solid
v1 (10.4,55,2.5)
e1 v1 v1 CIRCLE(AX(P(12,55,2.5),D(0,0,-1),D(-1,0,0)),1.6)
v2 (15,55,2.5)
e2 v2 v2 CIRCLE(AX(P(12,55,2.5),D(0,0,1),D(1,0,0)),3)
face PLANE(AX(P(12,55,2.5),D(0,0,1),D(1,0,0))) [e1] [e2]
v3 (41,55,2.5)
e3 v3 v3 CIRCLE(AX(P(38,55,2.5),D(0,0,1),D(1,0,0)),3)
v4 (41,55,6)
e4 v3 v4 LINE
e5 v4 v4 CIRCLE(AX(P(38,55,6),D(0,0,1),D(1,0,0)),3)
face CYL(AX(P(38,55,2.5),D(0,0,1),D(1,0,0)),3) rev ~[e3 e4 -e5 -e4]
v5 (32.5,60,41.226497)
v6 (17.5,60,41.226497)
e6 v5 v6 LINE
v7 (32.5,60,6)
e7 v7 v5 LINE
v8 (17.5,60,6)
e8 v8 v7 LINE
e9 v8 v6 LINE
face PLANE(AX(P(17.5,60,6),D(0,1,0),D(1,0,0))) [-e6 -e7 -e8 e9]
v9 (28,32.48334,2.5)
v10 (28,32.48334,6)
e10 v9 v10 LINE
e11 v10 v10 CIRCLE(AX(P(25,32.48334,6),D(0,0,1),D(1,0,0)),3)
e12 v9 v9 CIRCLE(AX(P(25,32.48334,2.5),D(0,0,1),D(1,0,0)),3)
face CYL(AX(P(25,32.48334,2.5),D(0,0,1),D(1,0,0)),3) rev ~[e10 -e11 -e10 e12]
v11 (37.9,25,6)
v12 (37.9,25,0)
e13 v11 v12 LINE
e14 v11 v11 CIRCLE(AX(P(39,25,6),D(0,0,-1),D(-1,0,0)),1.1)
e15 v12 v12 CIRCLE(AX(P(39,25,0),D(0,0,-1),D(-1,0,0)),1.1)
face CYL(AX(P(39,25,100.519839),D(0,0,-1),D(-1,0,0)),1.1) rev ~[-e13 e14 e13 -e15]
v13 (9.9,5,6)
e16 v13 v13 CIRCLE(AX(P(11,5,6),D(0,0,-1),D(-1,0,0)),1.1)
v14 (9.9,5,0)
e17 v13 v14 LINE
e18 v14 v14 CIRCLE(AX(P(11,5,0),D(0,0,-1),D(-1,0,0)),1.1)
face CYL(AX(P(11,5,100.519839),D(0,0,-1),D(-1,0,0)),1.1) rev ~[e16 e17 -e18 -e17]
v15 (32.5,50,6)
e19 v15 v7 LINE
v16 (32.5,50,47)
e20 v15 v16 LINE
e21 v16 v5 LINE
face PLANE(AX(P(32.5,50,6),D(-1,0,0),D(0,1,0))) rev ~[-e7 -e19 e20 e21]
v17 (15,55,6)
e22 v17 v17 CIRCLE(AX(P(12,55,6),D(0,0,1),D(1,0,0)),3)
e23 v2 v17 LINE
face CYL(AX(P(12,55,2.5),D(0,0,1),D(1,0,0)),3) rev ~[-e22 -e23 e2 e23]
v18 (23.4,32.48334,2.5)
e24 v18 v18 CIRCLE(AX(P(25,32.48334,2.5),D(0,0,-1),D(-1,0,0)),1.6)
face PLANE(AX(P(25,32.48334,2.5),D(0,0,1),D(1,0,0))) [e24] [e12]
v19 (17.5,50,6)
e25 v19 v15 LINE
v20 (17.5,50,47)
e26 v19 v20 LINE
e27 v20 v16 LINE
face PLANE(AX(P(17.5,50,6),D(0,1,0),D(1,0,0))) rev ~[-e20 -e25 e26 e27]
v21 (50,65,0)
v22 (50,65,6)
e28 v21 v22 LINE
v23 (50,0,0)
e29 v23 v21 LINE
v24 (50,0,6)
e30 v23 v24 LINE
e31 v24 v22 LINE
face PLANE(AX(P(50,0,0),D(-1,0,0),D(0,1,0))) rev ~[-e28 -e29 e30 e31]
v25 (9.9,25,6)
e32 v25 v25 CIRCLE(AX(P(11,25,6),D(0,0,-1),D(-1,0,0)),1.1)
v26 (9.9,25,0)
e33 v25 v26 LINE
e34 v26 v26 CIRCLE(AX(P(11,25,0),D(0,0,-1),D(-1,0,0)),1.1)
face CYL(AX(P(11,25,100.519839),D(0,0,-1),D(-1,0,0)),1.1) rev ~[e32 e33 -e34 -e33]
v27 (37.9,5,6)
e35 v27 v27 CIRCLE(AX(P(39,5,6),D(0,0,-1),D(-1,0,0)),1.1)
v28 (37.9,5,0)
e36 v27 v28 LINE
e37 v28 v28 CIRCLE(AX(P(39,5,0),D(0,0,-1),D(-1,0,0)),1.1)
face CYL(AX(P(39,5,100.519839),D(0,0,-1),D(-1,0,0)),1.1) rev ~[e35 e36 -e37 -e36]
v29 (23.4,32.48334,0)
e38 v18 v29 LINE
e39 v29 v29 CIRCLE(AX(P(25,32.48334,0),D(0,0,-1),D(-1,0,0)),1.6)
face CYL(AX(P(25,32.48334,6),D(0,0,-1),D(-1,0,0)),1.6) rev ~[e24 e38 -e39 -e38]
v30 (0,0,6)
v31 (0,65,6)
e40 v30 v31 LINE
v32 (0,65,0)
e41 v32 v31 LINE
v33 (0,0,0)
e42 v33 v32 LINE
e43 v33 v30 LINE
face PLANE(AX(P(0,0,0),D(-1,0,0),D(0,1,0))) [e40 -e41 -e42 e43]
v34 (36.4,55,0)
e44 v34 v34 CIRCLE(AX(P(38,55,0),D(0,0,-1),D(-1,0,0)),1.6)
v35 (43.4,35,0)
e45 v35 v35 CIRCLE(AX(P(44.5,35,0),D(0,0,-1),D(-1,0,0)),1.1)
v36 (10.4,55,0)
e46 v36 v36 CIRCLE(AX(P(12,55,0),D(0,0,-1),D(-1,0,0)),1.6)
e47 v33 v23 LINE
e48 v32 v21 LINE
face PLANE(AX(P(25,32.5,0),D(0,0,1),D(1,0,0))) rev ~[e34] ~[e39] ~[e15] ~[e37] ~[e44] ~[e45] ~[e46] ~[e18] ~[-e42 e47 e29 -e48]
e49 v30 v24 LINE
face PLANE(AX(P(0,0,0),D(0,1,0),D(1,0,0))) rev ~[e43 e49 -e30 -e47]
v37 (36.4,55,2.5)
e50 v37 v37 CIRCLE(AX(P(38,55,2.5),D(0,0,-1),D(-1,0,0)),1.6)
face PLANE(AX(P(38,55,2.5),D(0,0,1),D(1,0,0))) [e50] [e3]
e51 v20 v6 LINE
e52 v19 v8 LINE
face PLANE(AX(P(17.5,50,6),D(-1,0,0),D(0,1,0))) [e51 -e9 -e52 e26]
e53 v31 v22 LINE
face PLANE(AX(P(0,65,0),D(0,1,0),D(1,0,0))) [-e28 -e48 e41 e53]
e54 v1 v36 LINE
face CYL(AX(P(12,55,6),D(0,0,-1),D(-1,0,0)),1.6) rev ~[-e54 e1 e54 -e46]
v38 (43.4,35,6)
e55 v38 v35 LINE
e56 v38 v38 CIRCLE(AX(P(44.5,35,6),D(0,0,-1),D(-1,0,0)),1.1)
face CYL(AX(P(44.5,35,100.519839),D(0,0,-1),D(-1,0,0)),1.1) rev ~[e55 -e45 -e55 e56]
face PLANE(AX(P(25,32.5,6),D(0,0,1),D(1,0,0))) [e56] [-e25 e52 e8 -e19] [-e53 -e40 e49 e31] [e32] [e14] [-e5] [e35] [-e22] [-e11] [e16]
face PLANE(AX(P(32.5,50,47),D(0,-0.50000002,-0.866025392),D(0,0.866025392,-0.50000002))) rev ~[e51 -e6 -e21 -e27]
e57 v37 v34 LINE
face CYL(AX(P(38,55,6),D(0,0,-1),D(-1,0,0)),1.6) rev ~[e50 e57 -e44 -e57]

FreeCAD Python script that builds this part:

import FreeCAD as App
import Part
import Sketcher

V = App.Vector
Q = App.Units.Quantity

doc = App.newDocument("Part")
params = doc.addObject("Spreadsheet::Sheet", "Params")
for row, (alias, value) in enumerate([
    ("sketch1_width", "50 mm"),
    ("sketch1_height", "65 mm"),
    ("pad1_length", "6 mm"),
    ("sketch2_width", "15 mm"),
    ("sketch2_height", "10 mm"),
    ("pad2_length", "41 mm"),
    ("sketch3_diameter", "3.2 mm"),
    ("hole_diameter", "3.2 mm"),
    ("hole_cbore_diameter", "6 mm"),
    ("hole_cbore_depth", "3.5 mm"),
    ("sketch4_diameter", "2.2 mm"),
    ("hole2_diameter", "2.2 mm"),
    ("sketch5_width", "10 mm"),
], start=1):
    params.set(f"A{row}", alias)
    params.set(f"B{row}", "=" + value)
    params.setAlias(f"B{row}", alias)

body = doc.addObject("PartDesign::Body", "Body")

# Sketch on XY plane
sketch1 = doc.addObject("Sketcher::SketchObject", "Sketch")
body.addObject(sketch1)
sketch1.AttachmentSupport = (doc.XY_Plane, [""])
sketch1.MapMode = "FlatFace"
sketch1.addGeometry([
    Part.LineSegment(V(0, 65, 0), V(0, 0, 0)),
    Part.LineSegment(V(0, 0, 0), V(50, 0, 0)),
    Part.LineSegment(V(50, 0, 0), V(50, 65, 0)),
    Part.LineSegment(V(50, 65, 0), V(0, 65, 0)),
], False)
sketch1.addConstraint([
    Sketcher.Constraint("Coincident", 0, 2, 1, 1),
    Sketcher.Constraint("Coincident", 1, 2, 2, 1),
    Sketcher.Constraint("Coincident", 2, 2, 3, 1),
    Sketcher.Constraint("Coincident", 3, 2, 0, 1),
    Sketcher.Constraint("Vertical", 0),
    Sketcher.Constraint("Horizontal", 1),
    Sketcher.Constraint("Vertical", 2),
    Sketcher.Constraint("Horizontal", 3),
    Sketcher.Constraint("Coincident", 0, 2, -1, 1),
    Sketcher.Constraint("DistanceX", 1, 1, 1, 2, Q("50 mm")),
    Sketcher.Constraint("DistanceY", 0, 2, 0, 1, Q("65 mm")),
])
sketch1.setExpression("Constraints[9]", "Params.sketch1_width")
sketch1.setExpression("Constraints[10]", "Params.sketch1_height")
pad1 = doc.addObject("PartDesign::Pad", "Pad")
body.addObject(pad1)
pad1.Profile = sketch1
pad1.setExpression("Length", "Params.pad1_length")

# Sketch on XY plane
sketch2 = doc.addObject("Sketcher::SketchObject", "Sketch001")
body.addObject(sketch2)
sketch2.AttachmentSupport = (doc.XY_Plane, [""])
sketch2.MapMode = "FlatFace"
sketch2.AttachmentOffset = App.Placement(V(0, 0, 6), App.Rotation())
sketch2.addGeometry([
    Part.LineSegment(V(17.5, 60, 0), V(17.5, 50, 0)),
    Part.LineSegment(V(17.5, 50, 0), V(32.5, 50, 0)),
    Part.LineSegment(V(32.5, 50, 0), V(32.5, 60, 0)),
    Part.LineSegment(V(32.5, 60, 0), V(17.5, 60, 0)),
], False)
sketch2.addConstraint([
    Sketcher.Constraint("Coincident", 0, 2, 1, 1),
    Sketcher.Constraint("Coincident", 1, 2, 2, 1),
    Sketcher.Constraint("Coincident", 2, 2, 3, 1),
    Sketcher.Constraint("Coincident", 3, 2, 0, 1),
    Sketcher.Constraint("Vertical", 0),
    Sketcher.Constraint("Horizontal", 1),
    Sketcher.Constraint("Vertical", 2),
    Sketcher.Constraint("Horizontal", 3),
    Sketcher.Constraint("DistanceX", 1, 1, 1, 2, Q("15 mm")),
    Sketcher.Constraint("DistanceY", 0, 2, 0, 1, Q("10 mm")),
    Sketcher.Constraint("DistanceY", -1, 1, 0, 2, Q("50 mm")),
    Sketcher.Constraint("DistanceX", -1, 1, 0, 2, Q("17.5 mm")),
])
sketch2.setExpression("Constraints[8]", "Params.sketch2_width")
sketch2.setExpression("Constraints[9]", "Params.sketch2_height")
pad2 = doc.addObject("PartDesign::Pad", "Pad001")
body.addObject(pad2)
pad2.Profile = sketch2
pad2.setExpression("Length", "Params.pad2_length")

# Sketch on XY plane
sketch3 = doc.addObject("Sketcher::SketchObject", "Sketch002")
body.addObject(sketch3)
sketch3.AttachmentSupport = (doc.XY_Plane, [""])
sketch3.MapMode = "FlatFace"
sketch3.AttachmentOffset = App.Placement(V(0, 0, 6), App.Rotation())
sketch3.addGeometry([
    Part.Circle(V(12, 55, 0), V(0, 0, 1), 1.6),
    Part.Circle(V(38, 55, 0), V(0, 0, 1), 1.6),
    Part.Circle(V(25, 32.48334, 0), V(0, 0, 1), 1.6),
], False)
sketch3.addConstraint([
    Sketcher.Constraint("Equal", 0, 1),
    Sketcher.Constraint("Equal", 1, 2),
    Sketcher.Constraint("Horizontal", 0, 3, 1, 3),
    Sketcher.Constraint("Diameter", 0, Q("3.2 mm")),
    Sketcher.Constraint("DistanceX", -1, 1, 0, 3, Q("12 mm")),
    Sketcher.Constraint("DistanceY", -1, 1, 0, 3, Q("55 mm")),
    Sketcher.Constraint("DistanceX", -1, 1, 1, 3, Q("38 mm")),
    Sketcher.Constraint("DistanceX", -1, 1, 2, 3, Q("25 mm")),
    Sketcher.Constraint("DistanceY", -1, 1, 2, 3, Q("32.48334 mm")),
])
sketch3.setExpression("Constraints[3]", "Params.sketch3_diameter")
doc.recompute()
hole = doc.addObject("PartDesign::Hole", "Hole")
body.addObject(hole)
hole.Profile = sketch3
hole.ThreadType = "None"
hole.setExpression("Diameter", "Params.hole_diameter")
hole.DepthType = "ThroughAll"
hole.HoleCutType = "Counterbore"
hole.setExpression("HoleCutDiameter", "Params.hole_cbore_diameter")
hole.setExpression("HoleCutDepth", "Params.hole_cbore_depth")

# Sketch on XY plane
sketch4 = doc.addObject("Sketcher::SketchObject", "Sketch003")
body.addObject(sketch4)
sketch4.AttachmentSupport = (doc.XY_Plane, [""])
sketch4.MapMode = "FlatFace"
sketch4.AttachmentOffset = App.Placement(V(0, 0, 6), App.Rotation())
sketch4.addGeometry([
    Part.Circle(V(11, 25, 0), V(0, 0, 1), 1.1),  # 0
    Part.Circle(V(39, 25, 0), V(0, 0, 1), 1.1),  # 1
    Part.Circle(V(39, 5, 0), V(0, 0, 1), 1.1),  # 2
    Part.Circle(V(11, 5, 0), V(0, 0, 1), 1.1),  # 3
    Part.Circle(V(44.5, 35, 0), V(0, 0, 1), 1.1),  # 4
], False)
sketch4.addConstraint([
    Sketcher.Constraint("Equal", 0, 1),
    Sketcher.Constraint("Equal", 1, 2),
    Sketcher.Constraint("Equal", 2, 3),
    Sketcher.Constraint("Equal", 3, 4),
    Sketcher.Constraint("Horizontal", 0, 3, 1, 3),
    Sketcher.Constraint("Horizontal", 2, 3, 3, 3),
    Sketcher.Constraint("Vertical", 1, 3, 2, 3),
    Sketcher.Constraint("Vertical", 0, 3, 3, 3),
    Sketcher.Constraint("Diameter", 0, Q("2.2 mm")),
    Sketcher.Constraint("DistanceX", -1, 1, 0, 3, Q("11 mm")),
    Sketcher.Constraint("DistanceY", -1, 1, 0, 3, Q("25 mm")),
    Sketcher.Constraint("DistanceX", -1, 1, 1, 3, Q("39 mm")),
    Sketcher.Constraint("DistanceY", -1, 1, 2, 3, Q("5 mm")),
    Sketcher.Constraint("DistanceY", -1, 1, 4, 3, Q("35 mm")),
    Sketcher.Constraint("DistanceX", -1, 1, 4, 3, Q("44.5 mm")),
])
sketch4.setExpression("Constraints[8]", "Params.sketch4_diameter")
doc.recompute()
hole2 = doc.addObject("PartDesign::Hole", "Hole001")
body.addObject(hole2)
hole2.Profile = sketch4
hole2.ThreadType = "None"
hole2.setExpression("Diameter", "Params.hole2_diameter")
hole2.DepthType = "ThroughAll"

# Sketch on YZ plane
sketch5 = doc.addObject("Sketcher::SketchObject", "Sketch004")
body.addObject(sketch5)
sketch5.AttachmentSupport = (doc.YZ_Plane, [""])
sketch5.MapMode = "FlatFace"
sketch5.AttachmentOffset = App.Placement(V(0, 0, 32.5), App.Rotation())
sketch5.addGeometry([
    Part.LineSegment(V(60, 47, 0), V(50, 47, 0)),
    Part.LineSegment(V(50, 47, 0), V(60, 41.226497, 0)),
    Part.LineSegment(V(60, 41.226497, 0), V(60, 47, 0)),
], False)
sketch5.addConstraint([
    Sketcher.Constraint("Coincident", 0, 2, 1, 1),
    Sketcher.Constraint("Coincident", 1, 2, 2, 1),
    Sketcher.Constraint("Coincident", 2, 2, 0, 1),
    Sketcher.Constraint("Horizontal", 0),
    Sketcher.Constraint("Vertical", 2),
    Sketcher.Constraint("DistanceX", 0, 2, 0, 1, Q("10 mm")),
    Sketcher.Constraint("Angle", 1, Q("-30.000001 deg")),
    Sketcher.Constraint("DistanceX", -1, 1, 0, 2, Q("50 mm")),
    Sketcher.Constraint("DistanceY", -1, 1, 0, 2, Q("47 mm")),
])
sketch5.setExpression("Constraints[5]", "Params.sketch5_width")
pocket1 = doc.addObject("PartDesign::Pocket", "Pocket")
body.addObject(pocket1)
pocket1.Profile = sketch5
pocket1.Type = "ThroughAll"

doc.recompute()
